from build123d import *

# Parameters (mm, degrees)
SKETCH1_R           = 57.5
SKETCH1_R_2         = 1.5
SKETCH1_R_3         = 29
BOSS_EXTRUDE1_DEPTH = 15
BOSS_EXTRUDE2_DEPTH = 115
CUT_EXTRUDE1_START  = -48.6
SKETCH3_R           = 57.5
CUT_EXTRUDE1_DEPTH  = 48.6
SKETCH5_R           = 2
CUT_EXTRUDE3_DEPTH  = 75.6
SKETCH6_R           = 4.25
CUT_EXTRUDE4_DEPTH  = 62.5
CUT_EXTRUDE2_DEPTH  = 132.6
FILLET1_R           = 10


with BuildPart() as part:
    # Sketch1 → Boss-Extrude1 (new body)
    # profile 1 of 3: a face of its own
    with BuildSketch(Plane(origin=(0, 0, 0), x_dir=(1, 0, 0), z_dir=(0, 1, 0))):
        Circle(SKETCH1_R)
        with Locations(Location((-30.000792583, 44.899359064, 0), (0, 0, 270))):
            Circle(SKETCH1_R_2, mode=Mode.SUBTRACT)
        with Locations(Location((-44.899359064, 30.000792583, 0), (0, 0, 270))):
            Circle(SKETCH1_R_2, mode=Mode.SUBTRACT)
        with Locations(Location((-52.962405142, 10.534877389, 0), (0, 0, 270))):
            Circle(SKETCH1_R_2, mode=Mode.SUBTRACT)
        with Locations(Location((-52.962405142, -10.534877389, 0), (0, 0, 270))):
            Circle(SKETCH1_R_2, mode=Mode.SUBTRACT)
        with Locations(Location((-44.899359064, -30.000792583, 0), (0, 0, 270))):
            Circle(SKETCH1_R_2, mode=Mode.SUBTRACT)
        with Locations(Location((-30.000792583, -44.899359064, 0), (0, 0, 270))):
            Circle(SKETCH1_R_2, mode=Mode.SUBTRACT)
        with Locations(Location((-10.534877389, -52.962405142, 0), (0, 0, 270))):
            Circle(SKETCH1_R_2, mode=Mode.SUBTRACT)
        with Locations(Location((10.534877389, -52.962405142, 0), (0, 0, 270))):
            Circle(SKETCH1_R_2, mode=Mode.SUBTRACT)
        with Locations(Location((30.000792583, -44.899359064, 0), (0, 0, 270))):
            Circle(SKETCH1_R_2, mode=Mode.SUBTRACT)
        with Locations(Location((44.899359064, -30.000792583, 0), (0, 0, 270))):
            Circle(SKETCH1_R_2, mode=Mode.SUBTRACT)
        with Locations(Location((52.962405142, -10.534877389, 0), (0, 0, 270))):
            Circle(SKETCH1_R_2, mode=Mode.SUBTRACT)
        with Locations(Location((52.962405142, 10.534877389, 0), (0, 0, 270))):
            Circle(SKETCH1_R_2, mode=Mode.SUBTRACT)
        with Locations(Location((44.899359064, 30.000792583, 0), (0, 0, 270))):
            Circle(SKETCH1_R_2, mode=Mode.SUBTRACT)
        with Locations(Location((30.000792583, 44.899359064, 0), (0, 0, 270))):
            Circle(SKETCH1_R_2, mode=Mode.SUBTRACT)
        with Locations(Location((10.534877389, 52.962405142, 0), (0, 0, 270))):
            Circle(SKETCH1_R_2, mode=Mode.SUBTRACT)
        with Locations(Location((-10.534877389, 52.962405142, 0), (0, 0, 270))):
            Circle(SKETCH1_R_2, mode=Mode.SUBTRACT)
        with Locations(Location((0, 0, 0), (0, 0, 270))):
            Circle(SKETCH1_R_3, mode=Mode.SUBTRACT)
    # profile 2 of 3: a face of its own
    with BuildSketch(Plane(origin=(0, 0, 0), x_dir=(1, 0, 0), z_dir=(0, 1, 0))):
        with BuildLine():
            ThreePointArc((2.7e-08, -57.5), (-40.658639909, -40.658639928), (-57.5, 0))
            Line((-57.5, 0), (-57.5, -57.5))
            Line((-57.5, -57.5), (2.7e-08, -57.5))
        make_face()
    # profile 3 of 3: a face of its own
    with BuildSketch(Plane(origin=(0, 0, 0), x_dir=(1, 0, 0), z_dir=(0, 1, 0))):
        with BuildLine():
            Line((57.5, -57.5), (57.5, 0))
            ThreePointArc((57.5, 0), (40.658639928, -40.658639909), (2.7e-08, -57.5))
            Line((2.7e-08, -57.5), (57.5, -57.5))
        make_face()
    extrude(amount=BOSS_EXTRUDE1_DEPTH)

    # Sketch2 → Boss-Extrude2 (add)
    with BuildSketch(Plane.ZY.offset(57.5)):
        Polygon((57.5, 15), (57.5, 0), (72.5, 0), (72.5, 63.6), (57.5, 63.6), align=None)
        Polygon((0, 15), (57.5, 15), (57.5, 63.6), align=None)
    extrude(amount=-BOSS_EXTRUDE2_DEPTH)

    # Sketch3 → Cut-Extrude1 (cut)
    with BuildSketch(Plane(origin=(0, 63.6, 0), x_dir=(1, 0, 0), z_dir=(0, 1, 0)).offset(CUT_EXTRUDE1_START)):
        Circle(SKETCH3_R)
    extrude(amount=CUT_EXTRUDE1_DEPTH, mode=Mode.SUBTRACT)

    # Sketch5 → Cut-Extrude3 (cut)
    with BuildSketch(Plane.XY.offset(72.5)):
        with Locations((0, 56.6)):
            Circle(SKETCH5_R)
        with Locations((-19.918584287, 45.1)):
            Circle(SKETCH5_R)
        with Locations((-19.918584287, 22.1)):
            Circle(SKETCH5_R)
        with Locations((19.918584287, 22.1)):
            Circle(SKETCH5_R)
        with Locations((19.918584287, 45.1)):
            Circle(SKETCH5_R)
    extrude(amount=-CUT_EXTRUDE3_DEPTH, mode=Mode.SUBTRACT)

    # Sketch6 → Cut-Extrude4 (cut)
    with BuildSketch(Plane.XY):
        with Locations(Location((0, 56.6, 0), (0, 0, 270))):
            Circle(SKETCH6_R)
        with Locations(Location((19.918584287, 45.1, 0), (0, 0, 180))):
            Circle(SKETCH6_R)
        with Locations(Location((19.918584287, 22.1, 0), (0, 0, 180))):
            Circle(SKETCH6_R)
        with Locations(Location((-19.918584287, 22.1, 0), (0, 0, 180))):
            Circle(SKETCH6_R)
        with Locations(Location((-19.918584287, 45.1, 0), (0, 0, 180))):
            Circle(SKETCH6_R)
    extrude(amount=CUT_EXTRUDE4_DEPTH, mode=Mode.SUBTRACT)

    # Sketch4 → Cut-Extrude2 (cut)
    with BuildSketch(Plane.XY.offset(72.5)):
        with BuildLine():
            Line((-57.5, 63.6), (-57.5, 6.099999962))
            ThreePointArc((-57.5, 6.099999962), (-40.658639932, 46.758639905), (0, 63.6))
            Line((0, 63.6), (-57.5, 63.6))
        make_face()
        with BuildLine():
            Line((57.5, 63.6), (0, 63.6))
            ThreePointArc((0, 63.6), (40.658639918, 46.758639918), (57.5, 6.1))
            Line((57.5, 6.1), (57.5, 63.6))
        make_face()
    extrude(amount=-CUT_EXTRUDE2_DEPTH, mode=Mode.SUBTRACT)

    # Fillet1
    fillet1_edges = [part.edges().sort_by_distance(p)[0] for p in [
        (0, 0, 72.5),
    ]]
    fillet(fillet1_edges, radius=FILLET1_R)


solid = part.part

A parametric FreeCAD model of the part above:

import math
import FreeCAD as App
import Part
import Sketcher

V = App.Vector


def edges_at(feature, points):
    """Names of the edges that pass closest to the given points."""
    edges = feature.Shape.Edges
    near = lambda p: min(range(len(edges)), key=lambda i: edges[i].distToShape(Part.Vertex(*p))[0])
    return sorted({f"Edge{near(p) + 1}" for p in points})


def add_polygon(sketch, points):
    """Adds a closed chain of lines whose ends are joined by coincident constraints."""
    first, n = sketch.GeometryCount, len(points)
    for a, b in zip(points, points[1:] + points[:1]):
        sketch.addGeometry(Part.LineSegment(App.Vector(*a, 0), App.Vector(*b, 0)), False)
    for i in range(n):
        sketch.addConstraint(Sketcher.Constraint("Coincident", first + i, 2, first + (i + 1) % n, 1))

doc = App.newDocument("Part")
body = doc.addObject("PartDesign::Body", "Body")

# Sketch on XZ plane
sketch1 = body.newObject("Sketcher::SketchObject", "Sketch")
sketch1.AttachmentSupport = (doc.getObject("XZ_Plane"), [""])
sketch1.MapMode = "FlatFace"
sketch1.addGeometry(Part.ArcOfCircle(Part.Circle(V(0, 0, 0), V(0, 0, 1), 57.5), math.radians(180), math.radians(360)), False)
sketch1.addGeometry(Part.LineSegment(V(-57.5, 0, 0), V(-57.5, 57.5, 0)), False)
sketch1.addGeometry(Part.LineSegment(V(-57.5, 57.5, 0), V(57.5, 57.5, 0)), False)
sketch1.addGeometry(Part.LineSegment(V(57.5, 57.5, 0), V(57.5, 0, 0)), False)
sketch1.addGeometry(Part.Circle(V(-30.000793, 44.899359, 0), V(0, 0, 1), 1.5), False)
sketch1.addGeometry(Part.Circle(V(-44.899359, 30.000793, 0), V(0, 0, 1), 1.5), False)
sketch1.addGeometry(Part.Circle(V(-10.534877, 52.962405, 0), V(0, 0, 1), 1.5), False)
sketch1.addGeometry(Part.Circle(V(-52.962405, 10.534877, 0), V(0, 0, 1), 1.5), False)
sketch1.addGeometry(Part.Circle(V(10.534877, 52.962405, 0), V(0, 0, 1), 1.5), False)
sketch1.addGeometry(Part.Circle(V(30.000793, 44.899359, 0), V(0, 0, 1), 1.5), False)
sketch1.addGeometry(Part.Circle(V(44.899359, 30.000793, 0), V(0, 0, 1), 1.5), False)
sketch1.addGeometry(Part.Circle(V(52.962405, 10.534877, 0), V(0, 0, 1), 1.5), False)
sketch1.addGeometry(Part.Circle(V(-52.962405, -10.534877, 0), V(0, 0, 1), 1.5), False)
sketch1.addGeometry(Part.Circle(V(-44.899359, -30.000793, 0), V(0, 0, 1), 1.5), False)
sketch1.addGeometry(Part.Circle(V(-30.000793, -44.899359, 0), V(0, 0, 1), 1.5), False)
sketch1.addGeometry(Part.Circle(V(-10.534877, -52.962405, 0), V(0, 0, 1), 1.5), False)
sketch1.addGeometry(Part.Circle(V(0, 0, 0), V(0, 0, 1), 29), False)
sketch1.addGeometry(Part.Circle(V(52.962405, -10.534877, 0), V(0, 0, 1), 1.5), False)
sketch1.addGeometry(Part.Circle(V(10.534877, -52.962405, 0), V(0, 0, 1), 1.5), False)
sketch1.addGeometry(Part.Circle(V(44.899359, -30.000793, 0), V(0, 0, 1), 1.5), False)
sketch1.addGeometry(Part.Circle(V(30.000793, -44.899359, 0), V(0, 0, 1), 1.5), False)
sketch1.addConstraint(Sketcher.Constraint("Tangent", 0, 1, 1, 1))
sketch1.addConstraint(Sketcher.Constraint("Coincident", 1, 2, 2, 1))
sketch1.addConstraint(Sketcher.Constraint("Coincident", 2, 2, 3, 1))
sketch1.addConstraint(Sketcher.Constraint("Tangent", 3, 2, 0, 2))
sketch1.addConstraint(Sketcher.Constraint("Vertical", 1))
sketch1.addConstraint(Sketcher.Constraint("Horizontal", 2))
sketch1.addConstraint(Sketcher.Constraint("Vertical", 3))
sketch1.addConstraint(Sketcher.Constraint("Coincident", 0, 3, -1, 1))
sketch1.addConstraint(Sketcher.Constraint("Coincident", 16, 3, -1, 1))
sketch1.addConstraint(Sketcher.Constraint("Equal", 4, 5))
sketch1.addConstraint(Sketcher.Constraint("Equal", 5, 6))
sketch1.addConstraint(Sketcher.Constraint("Equal", 6, 7))
sketch1.addConstraint(Sketcher.Constraint("Equal", 7, 8))
sketch1.addConstraint(Sketcher.Constraint("Equal", 8, 9))
sketch1.addConstraint(Sketcher.Constraint("Equal", 9, 10))
sketch1.addConstraint(Sketcher.Constraint("Equal", 10, 11))
sketch1.addConstraint(Sketcher.Constraint("Equal", 11, 12))
sketch1.addConstraint(Sketcher.Constraint("Equal", 12, 13))
sketch1.addConstraint(Sketcher.Constraint("Equal", 13, 14))
sketch1.addConstraint(Sketcher.Constraint("Equal", 14, 15))
sketch1.addConstraint(Sketcher.Constraint("Equal", 15, 17))
sketch1.addConstraint(Sketcher.Constraint("Equal", 17, 18))
sketch1.addConstraint(Sketcher.Constraint("Equal", 18, 19))
sketch1.addConstraint(Sketcher.Constraint("Equal", 19, 20))
sketch1.addConstraint(Sketcher.Constraint("Symmetric", 11, 3, 12, 3, -1, 1))
sketch1.addConstraint(Sketcher.Constraint("Symmetric", 10, 3, 13, 3, -1, 1))
sketch1.addConstraint(Sketcher.Constraint("Symmetric", 9, 3, 14, 3, -1, 1))
sketch1.addConstraint(Sketcher.Constraint("Symmetric", 8, 3, 15, 3, -1, 1))
sketch1.addConstraint(Sketcher.Constraint("Symmetric", 7, 3, 17, 3, -1, 1))
sketch1.addConstraint(Sketcher.Constraint("Symmetric", 6, 3, 18, 3, -1, 1))
sketch1.addConstraint(Sketcher.Constraint("Symmetric", 5, 3, 19, 3, -1, 1))
sketch1.addConstraint(Sketcher.Constraint("Symmetric", 4, 3, 20, 3, -1, 1))
sketch1.addConstraint(Sketcher.Constraint("Symmetric", 6, 3, 8, 3, -2))
sketch1.addConstraint(Sketcher.Constraint("Symmetric", 4, 3, 9, 3, -2))
sketch1.addConstraint(Sketcher.Constraint("Symmetric", 5, 3, 10, 3, -2))
sketch1.addConstraint(Sketcher.Constraint("Symmetric", 7, 3, 11, 3, -2))
sketch1.addConstraint(Sketcher.Constraint("Diameter", 4, 3.0))
sketch1.addConstraint(Sketcher.Constraint("Diameter", 16, 58.0))
sketch1.addConstraint(Sketcher.Constraint("Radius", 0, 57.5))
sketch1.addConstraint(Sketcher.Constraint("DistanceY", 1, 1, 1, 2, 57.5))
sketch1.addConstraint(Sketcher.Constraint("DistanceY", -1, 1, 4, 3, 44.899359))
sketch1.addConstraint(Sketcher.Constraint("DistanceX", 5, 3, -1, 1, 44.899359))
sketch1.addConstraint(Sketcher.Constraint("DistanceX", 5, 3, 6, 3, 34.364482))
sketch1.addConstraint(Sketcher.Constraint("DistanceY", 7, 3, 4, 3, 34.364482))
sketch1.addConstraint(Sketcher.Constraint("DistanceX", 4, 3, 8, 3, 40.53567))
sketch1.addConstraint(Sketcher.Constraint("DistanceY", 12, 3, 5, 3, 40.53567))
sketch1.addConstraint(Sketcher.Constraint("DistanceY", -1, 1, 6, 3, 52.962405))
sketch1.addConstraint(Sketcher.Constraint("DistanceX", 7, 3, -1, 1, 52.962405))
pad1 = body.newObject("PartDesign::Pad", "Pad")
pad1.Profile = sketch1
pad1.Length = 15
pad1.Reversed = True

# Sketch on YZ plane
sketch2 = body.newObject("Sketcher::SketchObject", "Sketch001")
sketch2.AttachmentSupport = (doc.getObject("YZ_Plane"), [""])
sketch2.MapMode = "FlatFace"
sketch2.AttachmentOffset = App.Placement(V(0, 0, -57.5), App.Rotation())
add_polygon(sketch2, [(0, 57.5), (0, 72.5), (63.6, 72.5), (63.6, 57.5), (15, 0), (15, 57.5)])  # lines 0-5
sketch2.addConstraint(Sketcher.Constraint("Vertical", 0))
sketch2.addConstraint(Sketcher.Constraint("Horizontal", 1))
sketch2.addConstraint(Sketcher.Constraint("Vertical", 2))
sketch2.addConstraint(Sketcher.Constraint("Vertical", 4))
sketch2.addConstraint(Sketcher.Constraint("Horizontal", 5))
sketch2.addConstraint(Sketcher.Constraint("PointOnObject", 0, 2, -2))
sketch2.addConstraint(Sketcher.Constraint("PointOnObject", 3, 2, -1))
sketch2.addConstraint(Sketcher.Constraint("Horizontal", 2, 2, 4, 2))
sketch2.addConstraint(Sketcher.Constraint("Equal", 5, 0))
sketch2.addConstraint(Sketcher.Constraint("DistanceX", 5, 2, 5, 1, 15.0))
sketch2.addConstraint(Sketcher.Constraint("DistanceX", 1, 1, 1, 2, 63.6))
sketch2.addConstraint(Sketcher.Constraint("DistanceY", 4, 1, 4, 2, 57.5))
pad2 = body.newObject("PartDesign::Pad", "Pad001")
pad2.Profile = sketch2
pad2.Length = 115

# Sketch on XZ plane
sketch3 = body.newObject("Sketcher::SketchObject", "Sketch002")
sketch3.AttachmentSupport = (doc.getObject("XZ_Plane"), [""])
sketch3.MapMode = "FlatFace"
sketch3.AttachmentOffset = App.Placement(V(0, 0, -15), App.Rotation())
sketch3.addGeometry(Part.Circle(V(0, 0, 0), V(0, 0, 1), 57.5), False)
sketch3.addConstraint(Sketcher.Constraint("Coincident", 0, 3, -1, 1))
sketch3.addConstraint(Sketcher.Constraint("Diameter", 0, 115.0))
pocket1 = body.newObject("PartDesign::Pocket", "Pocket")
pocket1.Profile = sketch3
pocket1.Length = 48.6

# Sketch on XY plane
sketch4 = body.newObject("Sketcher::SketchObject", "Sketch003")
sketch4.AttachmentSupport = (doc.getObject("XY_Plane"), [""])
sketch4.MapMode = "FlatFace"
sketch4.AttachmentOffset = App.Placement(V(0, 0, 72.5), App.Rotation())
sketch4.addGeometry(Part.Circle(V(0, 56.6, 0), V(0, 0, 1), 2), False)
sketch4.addGeometry(Part.Circle(V(-19.918584, 45.1, 0), V(0, 0, 1), 2), False)
sketch4.addGeometry(Part.Circle(V(-19.918584, 22.1, 0), V(0, 0, 1), 2), False)
sketch4.addGeometry(Part.Circle(V(19.918584, 22.1, 0), V(0, 0, 1), 2), False)
sketch4.addGeometry(Part.Circle(V(19.918584, 45.1, 0), V(0, 0, 1), 2), False)
sketch4.addConstraint(Sketcher.Constraint("Equal", 0, 1))
sketch4.addConstraint(Sketcher.Constraint("Equal", 1, 2))
sketch4.addConstraint(Sketcher.Constraint("Equal", 2, 3))
sketch4.addConstraint(Sketcher.Constraint("Equal", 3, 4))
sketch4.addConstraint(Sketcher.Constraint("Symmetric", 2, 3, 3, 3, -2))
sketch4.addConstraint(Sketcher.Constraint("Symmetric", 1, 3, 4, 3, -2))
sketch4.addConstraint(Sketcher.Constraint("PointOnObject", 0, 3, -2))
sketch4.addConstraint(Sketcher.Constraint("Vertical", 1, 3, 2, 3))
sketch4.addConstraint(Sketcher.Constraint("Diameter", 0, 4.0))
sketch4.addConstraint(Sketcher.Constraint("DistanceY", 2, 3, 1, 3, 23.0))
sketch4.addConstraint(Sketcher.Constraint("DistanceY", -1, 1, 0, 3, 56.6))
sketch4.addConstraint(Sketcher.Constraint("DistanceY", -1, 1, 1, 3, 45.1))
sketch4.addConstraint(Sketcher.Constraint("DistanceX", 2, 3, 3, 3, 39.837169))
pocket2 = body.newObject("PartDesign::Pocket", "Pocket001")
pocket2.Profile = sketch4
pocket2.Length = 75.6

# Sketch on XY plane
sketch5 = body.newObject("Sketcher::SketchObject", "Sketch004")
sketch5.AttachmentSupport = (doc.getObject("XY_Plane"), [""])
sketch5.MapMode = "FlatFace"
sketch5.addGeometry(Part.Circle(V(0, 56.6, 0), V(0, 0, 1), 4.25), False)
sketch5.addGeometry(Part.Circle(V(19.918584, 45.1, 0), V(0, 0, 1), 4.25), False)
sketch5.addGeometry(Part.Circle(V(19.918584, 22.1, 0), V(0, 0, 1), 4.25), False)
sketch5.addGeometry(Part.Circle(V(-19.918584, 22.1, 0), V(0, 0, 1), 4.25), False)
sketch5.addGeometry(Part.Circle(V(-19.918584, 45.1, 0), V(0, 0, 1), 4.25), False)
sketch5.addConstraint(Sketcher.Constraint("Equal", 0, 1))
sketch5.addConstraint(Sketcher.Constraint("Equal", 1, 2))
sketch5.addConstraint(Sketcher.Constraint("Equal", 2, 3))
sketch5.addConstraint(Sketcher.Constraint("Equal", 3, 4))
sketch5.addConstraint(Sketcher.Constraint("Symmetric", 2, 3, 3, 3, -2))
sketch5.addConstraint(Sketcher.Constraint("Symmetric", 1, 3, 4, 3, -2))
sketch5.addConstraint(Sketcher.Constraint("PointOnObject", 0, 3, -2))
sketch5.addConstraint(Sketcher.Constraint("Vertical", 1, 3, 2, 3))
sketch5.addConstraint(Sketcher.Constraint("Diameter", 0, 8.5))
sketch5.addConstraint(Sketcher.Constraint("DistanceY", 2, 3, 1, 3, 23.0))
sketch5.addConstraint(Sketcher.Constraint("DistanceY", -1, 1, 0, 3, 56.6))
sketch5.addConstraint(Sketcher.Constraint("DistanceY", -1, 1, 1, 3, 45.1))
sketch5.addConstraint(Sketcher.Constraint("DistanceX", 3, 3, 2, 3, 39.837169))
pocket3 = body.newObject("PartDesign::Pocket", "Pocket002")
pocket3.Profile = sketch5
pocket3.Length = 62.5
pocket3.Reversed = True

# Sketch on XY plane
sketch6 = body.newObject("Sketcher::SketchObject", "Sketch005")
sketch6.AttachmentSupport = (doc.getObject("XY_Plane"), [""])
sketch6.MapMode = "FlatFace"
sketch6.AttachmentOffset = App.Placement(V(0, 0, 72.5), App.Rotation())
sketch6.addGeometry(Part.LineSegment(V(-57.5, 63.6, 0), V(-57.5, 6.1, 0)), False)
sketch6.addGeometry(Part.ArcOfCircle(Part.Circle(V(0, 6.1, 0), V(0, 0, 1), 57.5), math.radians(90), math.radians(180)), False)
sketch6.addGeometry(Part.LineSegment(V(0, 63.6, 0), V(-57.5, 63.6, 0)), False)
sketch6.addGeometry(Part.LineSegment(V(57.5, 63.6, 0), V(0, 63.6, 0)), False)
sketch6.addGeometry(Part.ArcOfCircle(Part.Circle(V(0, 6.1, 0), V(0, 0, 1), 57.5), math.radians(0), math.radians(90)), False)
sketch6.addGeometry(Part.LineSegment(V(57.5, 6.1, 0), V(57.5, 63.6, 0)), False)
sketch6.addConstraint(Sketcher.Constraint("Tangent", 0, 2, 1, 2))
sketch6.addConstraint(Sketcher.Constraint("Tangent", 1, 1, 2, 1))
sketch6.addConstraint(Sketcher.Constraint("Coincident", 2, 2, 0, 1))
sketch6.addConstraint(Sketcher.Constraint("Tangent", 3, 2, 4, 2))
sketch6.addConstraint(Sketcher.Constraint("Tangent", 4, 1, 5, 1))
sketch6.addConstraint(Sketcher.Constraint("Coincident", 5, 2, 3, 1))
sketch6.addConstraint(Sketcher.Constraint("Vertical", 0))
sketch6.addConstraint(Sketcher.Constraint("Horizontal", 2))
sketch6.addConstraint(Sketcher.Constraint("Horizontal", 3))
sketch6.addConstraint(Sketcher.Constraint("Vertical", 5))
sketch6.addConstraint(Sketcher.Constraint("Coincident", 4, 3, 1, 3))
sketch6.addConstraint(Sketcher.Constraint("Equal", 1, 4))
sketch6.addConstraint(Sketcher.Constraint("PointOnObject", 1, 3, -2))
sketch6.addConstraint(Sketcher.Constraint("Radius", 1, 57.5))
sketch6.addConstraint(Sketcher.Constraint("DistanceY", -1, 1, 1, 3, 6.1))
pocket4 = body.newObject("PartDesign::Pocket", "Pocket003")
pocket4.Profile = sketch6
pocket4.Length = 132.6
doc.recompute()

fillet = body.newObject("PartDesign::Fillet", "Fillet")
fillet.Base = (pocket4, edges_at(pocket4, [(0, 0, 72.5)]))
fillet.Radius = 10

doc.recompute()
